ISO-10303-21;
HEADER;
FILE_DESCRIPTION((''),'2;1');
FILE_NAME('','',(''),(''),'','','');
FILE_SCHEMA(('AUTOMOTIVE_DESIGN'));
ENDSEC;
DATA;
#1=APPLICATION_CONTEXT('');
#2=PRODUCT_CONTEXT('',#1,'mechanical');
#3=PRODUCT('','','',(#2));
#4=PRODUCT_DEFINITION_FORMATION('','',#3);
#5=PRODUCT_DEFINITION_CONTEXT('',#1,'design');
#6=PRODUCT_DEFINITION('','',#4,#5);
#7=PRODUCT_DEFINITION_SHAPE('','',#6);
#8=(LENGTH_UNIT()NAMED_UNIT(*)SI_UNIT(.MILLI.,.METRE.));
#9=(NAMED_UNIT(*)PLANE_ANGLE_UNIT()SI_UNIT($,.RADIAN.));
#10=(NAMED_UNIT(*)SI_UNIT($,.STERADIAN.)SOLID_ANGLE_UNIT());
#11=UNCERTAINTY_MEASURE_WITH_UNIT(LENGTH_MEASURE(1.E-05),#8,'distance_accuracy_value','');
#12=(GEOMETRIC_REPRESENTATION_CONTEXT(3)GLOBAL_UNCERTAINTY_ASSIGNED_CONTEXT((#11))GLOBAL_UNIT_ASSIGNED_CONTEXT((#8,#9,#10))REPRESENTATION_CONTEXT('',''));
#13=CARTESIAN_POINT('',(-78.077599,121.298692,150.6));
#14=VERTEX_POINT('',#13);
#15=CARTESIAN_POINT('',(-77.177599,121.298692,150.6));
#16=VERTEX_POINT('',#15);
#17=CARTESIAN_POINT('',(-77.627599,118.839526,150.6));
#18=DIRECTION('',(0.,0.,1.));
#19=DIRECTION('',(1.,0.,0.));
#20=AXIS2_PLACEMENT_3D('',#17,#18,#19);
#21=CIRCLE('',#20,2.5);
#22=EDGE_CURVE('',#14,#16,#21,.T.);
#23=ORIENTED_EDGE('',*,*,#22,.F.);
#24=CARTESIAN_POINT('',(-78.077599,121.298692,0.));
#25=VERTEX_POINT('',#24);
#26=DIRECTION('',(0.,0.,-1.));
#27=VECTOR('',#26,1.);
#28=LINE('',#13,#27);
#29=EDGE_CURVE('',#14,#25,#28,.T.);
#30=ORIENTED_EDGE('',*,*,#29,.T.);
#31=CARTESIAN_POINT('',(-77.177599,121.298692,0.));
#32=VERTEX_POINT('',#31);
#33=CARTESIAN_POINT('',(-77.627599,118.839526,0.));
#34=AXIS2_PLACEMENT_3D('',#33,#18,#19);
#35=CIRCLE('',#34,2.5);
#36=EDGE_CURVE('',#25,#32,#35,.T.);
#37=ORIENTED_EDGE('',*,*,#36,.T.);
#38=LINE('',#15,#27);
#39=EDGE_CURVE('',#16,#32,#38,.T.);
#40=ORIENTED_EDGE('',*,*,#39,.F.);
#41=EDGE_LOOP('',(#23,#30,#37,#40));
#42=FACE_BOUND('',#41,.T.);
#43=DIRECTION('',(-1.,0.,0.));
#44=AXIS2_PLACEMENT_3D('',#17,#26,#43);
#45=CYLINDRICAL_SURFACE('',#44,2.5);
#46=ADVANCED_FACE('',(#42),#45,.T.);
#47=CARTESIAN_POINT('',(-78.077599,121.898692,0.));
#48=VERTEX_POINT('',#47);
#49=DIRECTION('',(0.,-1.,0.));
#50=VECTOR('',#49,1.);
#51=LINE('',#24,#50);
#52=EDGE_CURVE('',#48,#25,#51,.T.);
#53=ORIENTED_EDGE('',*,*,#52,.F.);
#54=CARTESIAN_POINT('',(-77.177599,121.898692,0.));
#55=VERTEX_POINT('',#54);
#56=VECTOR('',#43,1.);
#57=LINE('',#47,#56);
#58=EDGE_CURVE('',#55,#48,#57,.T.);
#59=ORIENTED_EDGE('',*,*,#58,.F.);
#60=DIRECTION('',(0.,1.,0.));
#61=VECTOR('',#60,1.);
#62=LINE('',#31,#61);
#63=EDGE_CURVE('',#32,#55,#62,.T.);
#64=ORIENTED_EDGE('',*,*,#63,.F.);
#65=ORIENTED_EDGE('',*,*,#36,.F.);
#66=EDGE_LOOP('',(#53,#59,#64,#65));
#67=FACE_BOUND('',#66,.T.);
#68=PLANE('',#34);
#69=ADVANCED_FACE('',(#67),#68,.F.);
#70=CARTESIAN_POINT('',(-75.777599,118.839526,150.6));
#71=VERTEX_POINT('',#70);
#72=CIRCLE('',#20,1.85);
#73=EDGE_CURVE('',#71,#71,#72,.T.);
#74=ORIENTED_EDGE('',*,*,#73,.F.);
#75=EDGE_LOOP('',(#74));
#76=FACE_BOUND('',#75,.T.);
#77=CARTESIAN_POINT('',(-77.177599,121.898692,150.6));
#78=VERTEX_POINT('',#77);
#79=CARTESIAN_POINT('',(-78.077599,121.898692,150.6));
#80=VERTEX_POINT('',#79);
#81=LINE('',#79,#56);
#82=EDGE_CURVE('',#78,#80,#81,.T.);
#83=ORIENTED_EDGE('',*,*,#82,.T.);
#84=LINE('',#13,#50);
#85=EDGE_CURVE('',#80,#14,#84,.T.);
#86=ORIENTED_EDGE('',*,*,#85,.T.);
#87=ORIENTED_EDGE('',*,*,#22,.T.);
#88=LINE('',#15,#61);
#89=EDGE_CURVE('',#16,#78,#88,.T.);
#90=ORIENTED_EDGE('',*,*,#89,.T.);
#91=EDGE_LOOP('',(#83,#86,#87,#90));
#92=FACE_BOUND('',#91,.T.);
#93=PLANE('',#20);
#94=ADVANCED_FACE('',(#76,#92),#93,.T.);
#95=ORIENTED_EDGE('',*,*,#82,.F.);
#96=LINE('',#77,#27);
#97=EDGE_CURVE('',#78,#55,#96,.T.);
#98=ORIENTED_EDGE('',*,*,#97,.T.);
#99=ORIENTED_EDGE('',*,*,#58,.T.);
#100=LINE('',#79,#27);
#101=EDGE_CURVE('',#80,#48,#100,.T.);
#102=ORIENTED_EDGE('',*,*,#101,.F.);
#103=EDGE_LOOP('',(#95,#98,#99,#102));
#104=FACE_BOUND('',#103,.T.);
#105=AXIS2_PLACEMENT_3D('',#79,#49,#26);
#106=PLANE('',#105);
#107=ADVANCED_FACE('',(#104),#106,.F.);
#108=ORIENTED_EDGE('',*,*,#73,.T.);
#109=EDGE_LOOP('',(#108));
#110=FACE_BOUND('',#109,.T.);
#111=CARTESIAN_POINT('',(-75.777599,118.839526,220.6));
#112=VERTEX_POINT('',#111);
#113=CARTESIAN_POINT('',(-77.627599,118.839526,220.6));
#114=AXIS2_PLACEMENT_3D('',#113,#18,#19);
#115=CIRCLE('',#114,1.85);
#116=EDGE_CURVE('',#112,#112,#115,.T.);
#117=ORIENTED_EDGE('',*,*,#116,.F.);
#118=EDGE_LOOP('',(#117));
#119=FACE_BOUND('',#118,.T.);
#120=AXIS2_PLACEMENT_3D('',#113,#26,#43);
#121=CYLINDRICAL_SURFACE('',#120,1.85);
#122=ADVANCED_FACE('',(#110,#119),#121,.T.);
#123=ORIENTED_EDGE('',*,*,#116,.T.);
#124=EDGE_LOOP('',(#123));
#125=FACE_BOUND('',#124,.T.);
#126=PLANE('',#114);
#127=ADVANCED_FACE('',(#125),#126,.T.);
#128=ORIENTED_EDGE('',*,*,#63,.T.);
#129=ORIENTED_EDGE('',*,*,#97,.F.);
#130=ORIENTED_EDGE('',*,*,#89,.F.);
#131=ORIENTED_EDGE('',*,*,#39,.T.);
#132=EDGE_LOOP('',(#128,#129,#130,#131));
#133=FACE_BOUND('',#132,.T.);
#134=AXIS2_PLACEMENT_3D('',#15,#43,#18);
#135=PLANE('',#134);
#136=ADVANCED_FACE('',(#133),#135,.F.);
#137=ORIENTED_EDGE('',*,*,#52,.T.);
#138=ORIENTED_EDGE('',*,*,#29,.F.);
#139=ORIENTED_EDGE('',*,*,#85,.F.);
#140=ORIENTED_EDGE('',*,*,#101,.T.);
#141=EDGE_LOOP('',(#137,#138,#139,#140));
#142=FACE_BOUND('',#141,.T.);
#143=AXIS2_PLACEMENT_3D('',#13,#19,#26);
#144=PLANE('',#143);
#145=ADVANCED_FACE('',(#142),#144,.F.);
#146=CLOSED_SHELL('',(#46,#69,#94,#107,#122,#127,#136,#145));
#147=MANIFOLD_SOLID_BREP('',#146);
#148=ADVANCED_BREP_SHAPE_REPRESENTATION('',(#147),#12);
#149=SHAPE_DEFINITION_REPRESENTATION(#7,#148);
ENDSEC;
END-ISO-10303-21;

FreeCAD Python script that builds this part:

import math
import FreeCAD as App
import Part
import Sketcher

doc = App.newDocument("Part")
body = doc.addObject("PartDesign::Body", "Body")

sketch1 = body.newObject("Sketcher::SketchObject", "Sketch")
sketch1.AttachmentSupport = (doc.getObject("XY_Plane"), [""])
sketch1.MapMode = "FlatFace"
sketch1.addGeometry([
    Part.LineSegment(App.Vector(-78.1, 121.9, 0), App.Vector(-78.1, 121.3, 0)),
    Part.ArcOfCircle(Part.Circle(App.Vector(-77.6, 118.8, 0), App.Vector(0, 0, 1), 2.5), math.radians(100), math.radians(440)),
    Part.LineSegment(App.Vector(-77.2, 121.3, 0), App.Vector(-77.2, 121.9, 0)),
    Part.LineSegment(App.Vector(-77.2, 121.9, 0), App.Vector(-78.1, 121.9, 0)),
], False)
sketch1.addConstraint([
    Sketcher.Constraint("Coincident", 0, 2, 1, 1),
    Sketcher.Constraint("Coincident", 1, 2, 2, 1),
    Sketcher.Constraint("Coincident", 2, 2, 3, 1),
    Sketcher.Constraint("Coincident", 3, 2, 0, 1),
    Sketcher.Constraint("Vertical", 0),
    Sketcher.Constraint("Vertical", 2),
    Sketcher.Constraint("Horizontal", 3),
    Sketcher.Constraint("Horizontal", 0, 2, 1, 2),
    Sketcher.Constraint("Radius", 1, 2.5),
    Sketcher.Constraint("DistanceX", 3, 2, 3, 1, 0.9),
    Sketcher.Constraint("DistanceY", 0, 2, 0, 1, 0.6),
    Sketcher.Constraint("DistanceX", 1, 3, -1, 1, 77.627599),
    Sketcher.Constraint("DistanceY", -1, 1, 1, 3, 118.839526),
])
pad1 = body.newObject("PartDesign::Pad", "Pad")
pad1.Profile = sketch1
pad1.Length = 150.6

sketch2 = body.newObject("Sketcher::SketchObject", "Sketch001")
sketch2.AttachmentSupport = (doc.getObject("XY_Plane"), [""])
sketch2.MapMode = "FlatFace"
sketch2.AttachmentOffset = App.Placement(App.Vector(0, 0, 150.6), App.Rotation())
sketch2.addGeometry(Part.Circle(App.Vector(-77.6, 118.8, 0), App.Vector(0, 0, 1), 1.9), False)
sketch2.addConstraint([
    Sketcher.Constraint("Diameter", 0, 3.7),
    Sketcher.Constraint("DistanceX", 0, 3, -1, 1, 77.627599),
    Sketcher.Constraint("DistanceY", -1, 1, 0, 3, 118.839526),
])
pad2 = body.newObject("PartDesign::Pad", "Pad001")
pad2.Profile = sketch2
pad2.Length = 70

doc.recompute()
